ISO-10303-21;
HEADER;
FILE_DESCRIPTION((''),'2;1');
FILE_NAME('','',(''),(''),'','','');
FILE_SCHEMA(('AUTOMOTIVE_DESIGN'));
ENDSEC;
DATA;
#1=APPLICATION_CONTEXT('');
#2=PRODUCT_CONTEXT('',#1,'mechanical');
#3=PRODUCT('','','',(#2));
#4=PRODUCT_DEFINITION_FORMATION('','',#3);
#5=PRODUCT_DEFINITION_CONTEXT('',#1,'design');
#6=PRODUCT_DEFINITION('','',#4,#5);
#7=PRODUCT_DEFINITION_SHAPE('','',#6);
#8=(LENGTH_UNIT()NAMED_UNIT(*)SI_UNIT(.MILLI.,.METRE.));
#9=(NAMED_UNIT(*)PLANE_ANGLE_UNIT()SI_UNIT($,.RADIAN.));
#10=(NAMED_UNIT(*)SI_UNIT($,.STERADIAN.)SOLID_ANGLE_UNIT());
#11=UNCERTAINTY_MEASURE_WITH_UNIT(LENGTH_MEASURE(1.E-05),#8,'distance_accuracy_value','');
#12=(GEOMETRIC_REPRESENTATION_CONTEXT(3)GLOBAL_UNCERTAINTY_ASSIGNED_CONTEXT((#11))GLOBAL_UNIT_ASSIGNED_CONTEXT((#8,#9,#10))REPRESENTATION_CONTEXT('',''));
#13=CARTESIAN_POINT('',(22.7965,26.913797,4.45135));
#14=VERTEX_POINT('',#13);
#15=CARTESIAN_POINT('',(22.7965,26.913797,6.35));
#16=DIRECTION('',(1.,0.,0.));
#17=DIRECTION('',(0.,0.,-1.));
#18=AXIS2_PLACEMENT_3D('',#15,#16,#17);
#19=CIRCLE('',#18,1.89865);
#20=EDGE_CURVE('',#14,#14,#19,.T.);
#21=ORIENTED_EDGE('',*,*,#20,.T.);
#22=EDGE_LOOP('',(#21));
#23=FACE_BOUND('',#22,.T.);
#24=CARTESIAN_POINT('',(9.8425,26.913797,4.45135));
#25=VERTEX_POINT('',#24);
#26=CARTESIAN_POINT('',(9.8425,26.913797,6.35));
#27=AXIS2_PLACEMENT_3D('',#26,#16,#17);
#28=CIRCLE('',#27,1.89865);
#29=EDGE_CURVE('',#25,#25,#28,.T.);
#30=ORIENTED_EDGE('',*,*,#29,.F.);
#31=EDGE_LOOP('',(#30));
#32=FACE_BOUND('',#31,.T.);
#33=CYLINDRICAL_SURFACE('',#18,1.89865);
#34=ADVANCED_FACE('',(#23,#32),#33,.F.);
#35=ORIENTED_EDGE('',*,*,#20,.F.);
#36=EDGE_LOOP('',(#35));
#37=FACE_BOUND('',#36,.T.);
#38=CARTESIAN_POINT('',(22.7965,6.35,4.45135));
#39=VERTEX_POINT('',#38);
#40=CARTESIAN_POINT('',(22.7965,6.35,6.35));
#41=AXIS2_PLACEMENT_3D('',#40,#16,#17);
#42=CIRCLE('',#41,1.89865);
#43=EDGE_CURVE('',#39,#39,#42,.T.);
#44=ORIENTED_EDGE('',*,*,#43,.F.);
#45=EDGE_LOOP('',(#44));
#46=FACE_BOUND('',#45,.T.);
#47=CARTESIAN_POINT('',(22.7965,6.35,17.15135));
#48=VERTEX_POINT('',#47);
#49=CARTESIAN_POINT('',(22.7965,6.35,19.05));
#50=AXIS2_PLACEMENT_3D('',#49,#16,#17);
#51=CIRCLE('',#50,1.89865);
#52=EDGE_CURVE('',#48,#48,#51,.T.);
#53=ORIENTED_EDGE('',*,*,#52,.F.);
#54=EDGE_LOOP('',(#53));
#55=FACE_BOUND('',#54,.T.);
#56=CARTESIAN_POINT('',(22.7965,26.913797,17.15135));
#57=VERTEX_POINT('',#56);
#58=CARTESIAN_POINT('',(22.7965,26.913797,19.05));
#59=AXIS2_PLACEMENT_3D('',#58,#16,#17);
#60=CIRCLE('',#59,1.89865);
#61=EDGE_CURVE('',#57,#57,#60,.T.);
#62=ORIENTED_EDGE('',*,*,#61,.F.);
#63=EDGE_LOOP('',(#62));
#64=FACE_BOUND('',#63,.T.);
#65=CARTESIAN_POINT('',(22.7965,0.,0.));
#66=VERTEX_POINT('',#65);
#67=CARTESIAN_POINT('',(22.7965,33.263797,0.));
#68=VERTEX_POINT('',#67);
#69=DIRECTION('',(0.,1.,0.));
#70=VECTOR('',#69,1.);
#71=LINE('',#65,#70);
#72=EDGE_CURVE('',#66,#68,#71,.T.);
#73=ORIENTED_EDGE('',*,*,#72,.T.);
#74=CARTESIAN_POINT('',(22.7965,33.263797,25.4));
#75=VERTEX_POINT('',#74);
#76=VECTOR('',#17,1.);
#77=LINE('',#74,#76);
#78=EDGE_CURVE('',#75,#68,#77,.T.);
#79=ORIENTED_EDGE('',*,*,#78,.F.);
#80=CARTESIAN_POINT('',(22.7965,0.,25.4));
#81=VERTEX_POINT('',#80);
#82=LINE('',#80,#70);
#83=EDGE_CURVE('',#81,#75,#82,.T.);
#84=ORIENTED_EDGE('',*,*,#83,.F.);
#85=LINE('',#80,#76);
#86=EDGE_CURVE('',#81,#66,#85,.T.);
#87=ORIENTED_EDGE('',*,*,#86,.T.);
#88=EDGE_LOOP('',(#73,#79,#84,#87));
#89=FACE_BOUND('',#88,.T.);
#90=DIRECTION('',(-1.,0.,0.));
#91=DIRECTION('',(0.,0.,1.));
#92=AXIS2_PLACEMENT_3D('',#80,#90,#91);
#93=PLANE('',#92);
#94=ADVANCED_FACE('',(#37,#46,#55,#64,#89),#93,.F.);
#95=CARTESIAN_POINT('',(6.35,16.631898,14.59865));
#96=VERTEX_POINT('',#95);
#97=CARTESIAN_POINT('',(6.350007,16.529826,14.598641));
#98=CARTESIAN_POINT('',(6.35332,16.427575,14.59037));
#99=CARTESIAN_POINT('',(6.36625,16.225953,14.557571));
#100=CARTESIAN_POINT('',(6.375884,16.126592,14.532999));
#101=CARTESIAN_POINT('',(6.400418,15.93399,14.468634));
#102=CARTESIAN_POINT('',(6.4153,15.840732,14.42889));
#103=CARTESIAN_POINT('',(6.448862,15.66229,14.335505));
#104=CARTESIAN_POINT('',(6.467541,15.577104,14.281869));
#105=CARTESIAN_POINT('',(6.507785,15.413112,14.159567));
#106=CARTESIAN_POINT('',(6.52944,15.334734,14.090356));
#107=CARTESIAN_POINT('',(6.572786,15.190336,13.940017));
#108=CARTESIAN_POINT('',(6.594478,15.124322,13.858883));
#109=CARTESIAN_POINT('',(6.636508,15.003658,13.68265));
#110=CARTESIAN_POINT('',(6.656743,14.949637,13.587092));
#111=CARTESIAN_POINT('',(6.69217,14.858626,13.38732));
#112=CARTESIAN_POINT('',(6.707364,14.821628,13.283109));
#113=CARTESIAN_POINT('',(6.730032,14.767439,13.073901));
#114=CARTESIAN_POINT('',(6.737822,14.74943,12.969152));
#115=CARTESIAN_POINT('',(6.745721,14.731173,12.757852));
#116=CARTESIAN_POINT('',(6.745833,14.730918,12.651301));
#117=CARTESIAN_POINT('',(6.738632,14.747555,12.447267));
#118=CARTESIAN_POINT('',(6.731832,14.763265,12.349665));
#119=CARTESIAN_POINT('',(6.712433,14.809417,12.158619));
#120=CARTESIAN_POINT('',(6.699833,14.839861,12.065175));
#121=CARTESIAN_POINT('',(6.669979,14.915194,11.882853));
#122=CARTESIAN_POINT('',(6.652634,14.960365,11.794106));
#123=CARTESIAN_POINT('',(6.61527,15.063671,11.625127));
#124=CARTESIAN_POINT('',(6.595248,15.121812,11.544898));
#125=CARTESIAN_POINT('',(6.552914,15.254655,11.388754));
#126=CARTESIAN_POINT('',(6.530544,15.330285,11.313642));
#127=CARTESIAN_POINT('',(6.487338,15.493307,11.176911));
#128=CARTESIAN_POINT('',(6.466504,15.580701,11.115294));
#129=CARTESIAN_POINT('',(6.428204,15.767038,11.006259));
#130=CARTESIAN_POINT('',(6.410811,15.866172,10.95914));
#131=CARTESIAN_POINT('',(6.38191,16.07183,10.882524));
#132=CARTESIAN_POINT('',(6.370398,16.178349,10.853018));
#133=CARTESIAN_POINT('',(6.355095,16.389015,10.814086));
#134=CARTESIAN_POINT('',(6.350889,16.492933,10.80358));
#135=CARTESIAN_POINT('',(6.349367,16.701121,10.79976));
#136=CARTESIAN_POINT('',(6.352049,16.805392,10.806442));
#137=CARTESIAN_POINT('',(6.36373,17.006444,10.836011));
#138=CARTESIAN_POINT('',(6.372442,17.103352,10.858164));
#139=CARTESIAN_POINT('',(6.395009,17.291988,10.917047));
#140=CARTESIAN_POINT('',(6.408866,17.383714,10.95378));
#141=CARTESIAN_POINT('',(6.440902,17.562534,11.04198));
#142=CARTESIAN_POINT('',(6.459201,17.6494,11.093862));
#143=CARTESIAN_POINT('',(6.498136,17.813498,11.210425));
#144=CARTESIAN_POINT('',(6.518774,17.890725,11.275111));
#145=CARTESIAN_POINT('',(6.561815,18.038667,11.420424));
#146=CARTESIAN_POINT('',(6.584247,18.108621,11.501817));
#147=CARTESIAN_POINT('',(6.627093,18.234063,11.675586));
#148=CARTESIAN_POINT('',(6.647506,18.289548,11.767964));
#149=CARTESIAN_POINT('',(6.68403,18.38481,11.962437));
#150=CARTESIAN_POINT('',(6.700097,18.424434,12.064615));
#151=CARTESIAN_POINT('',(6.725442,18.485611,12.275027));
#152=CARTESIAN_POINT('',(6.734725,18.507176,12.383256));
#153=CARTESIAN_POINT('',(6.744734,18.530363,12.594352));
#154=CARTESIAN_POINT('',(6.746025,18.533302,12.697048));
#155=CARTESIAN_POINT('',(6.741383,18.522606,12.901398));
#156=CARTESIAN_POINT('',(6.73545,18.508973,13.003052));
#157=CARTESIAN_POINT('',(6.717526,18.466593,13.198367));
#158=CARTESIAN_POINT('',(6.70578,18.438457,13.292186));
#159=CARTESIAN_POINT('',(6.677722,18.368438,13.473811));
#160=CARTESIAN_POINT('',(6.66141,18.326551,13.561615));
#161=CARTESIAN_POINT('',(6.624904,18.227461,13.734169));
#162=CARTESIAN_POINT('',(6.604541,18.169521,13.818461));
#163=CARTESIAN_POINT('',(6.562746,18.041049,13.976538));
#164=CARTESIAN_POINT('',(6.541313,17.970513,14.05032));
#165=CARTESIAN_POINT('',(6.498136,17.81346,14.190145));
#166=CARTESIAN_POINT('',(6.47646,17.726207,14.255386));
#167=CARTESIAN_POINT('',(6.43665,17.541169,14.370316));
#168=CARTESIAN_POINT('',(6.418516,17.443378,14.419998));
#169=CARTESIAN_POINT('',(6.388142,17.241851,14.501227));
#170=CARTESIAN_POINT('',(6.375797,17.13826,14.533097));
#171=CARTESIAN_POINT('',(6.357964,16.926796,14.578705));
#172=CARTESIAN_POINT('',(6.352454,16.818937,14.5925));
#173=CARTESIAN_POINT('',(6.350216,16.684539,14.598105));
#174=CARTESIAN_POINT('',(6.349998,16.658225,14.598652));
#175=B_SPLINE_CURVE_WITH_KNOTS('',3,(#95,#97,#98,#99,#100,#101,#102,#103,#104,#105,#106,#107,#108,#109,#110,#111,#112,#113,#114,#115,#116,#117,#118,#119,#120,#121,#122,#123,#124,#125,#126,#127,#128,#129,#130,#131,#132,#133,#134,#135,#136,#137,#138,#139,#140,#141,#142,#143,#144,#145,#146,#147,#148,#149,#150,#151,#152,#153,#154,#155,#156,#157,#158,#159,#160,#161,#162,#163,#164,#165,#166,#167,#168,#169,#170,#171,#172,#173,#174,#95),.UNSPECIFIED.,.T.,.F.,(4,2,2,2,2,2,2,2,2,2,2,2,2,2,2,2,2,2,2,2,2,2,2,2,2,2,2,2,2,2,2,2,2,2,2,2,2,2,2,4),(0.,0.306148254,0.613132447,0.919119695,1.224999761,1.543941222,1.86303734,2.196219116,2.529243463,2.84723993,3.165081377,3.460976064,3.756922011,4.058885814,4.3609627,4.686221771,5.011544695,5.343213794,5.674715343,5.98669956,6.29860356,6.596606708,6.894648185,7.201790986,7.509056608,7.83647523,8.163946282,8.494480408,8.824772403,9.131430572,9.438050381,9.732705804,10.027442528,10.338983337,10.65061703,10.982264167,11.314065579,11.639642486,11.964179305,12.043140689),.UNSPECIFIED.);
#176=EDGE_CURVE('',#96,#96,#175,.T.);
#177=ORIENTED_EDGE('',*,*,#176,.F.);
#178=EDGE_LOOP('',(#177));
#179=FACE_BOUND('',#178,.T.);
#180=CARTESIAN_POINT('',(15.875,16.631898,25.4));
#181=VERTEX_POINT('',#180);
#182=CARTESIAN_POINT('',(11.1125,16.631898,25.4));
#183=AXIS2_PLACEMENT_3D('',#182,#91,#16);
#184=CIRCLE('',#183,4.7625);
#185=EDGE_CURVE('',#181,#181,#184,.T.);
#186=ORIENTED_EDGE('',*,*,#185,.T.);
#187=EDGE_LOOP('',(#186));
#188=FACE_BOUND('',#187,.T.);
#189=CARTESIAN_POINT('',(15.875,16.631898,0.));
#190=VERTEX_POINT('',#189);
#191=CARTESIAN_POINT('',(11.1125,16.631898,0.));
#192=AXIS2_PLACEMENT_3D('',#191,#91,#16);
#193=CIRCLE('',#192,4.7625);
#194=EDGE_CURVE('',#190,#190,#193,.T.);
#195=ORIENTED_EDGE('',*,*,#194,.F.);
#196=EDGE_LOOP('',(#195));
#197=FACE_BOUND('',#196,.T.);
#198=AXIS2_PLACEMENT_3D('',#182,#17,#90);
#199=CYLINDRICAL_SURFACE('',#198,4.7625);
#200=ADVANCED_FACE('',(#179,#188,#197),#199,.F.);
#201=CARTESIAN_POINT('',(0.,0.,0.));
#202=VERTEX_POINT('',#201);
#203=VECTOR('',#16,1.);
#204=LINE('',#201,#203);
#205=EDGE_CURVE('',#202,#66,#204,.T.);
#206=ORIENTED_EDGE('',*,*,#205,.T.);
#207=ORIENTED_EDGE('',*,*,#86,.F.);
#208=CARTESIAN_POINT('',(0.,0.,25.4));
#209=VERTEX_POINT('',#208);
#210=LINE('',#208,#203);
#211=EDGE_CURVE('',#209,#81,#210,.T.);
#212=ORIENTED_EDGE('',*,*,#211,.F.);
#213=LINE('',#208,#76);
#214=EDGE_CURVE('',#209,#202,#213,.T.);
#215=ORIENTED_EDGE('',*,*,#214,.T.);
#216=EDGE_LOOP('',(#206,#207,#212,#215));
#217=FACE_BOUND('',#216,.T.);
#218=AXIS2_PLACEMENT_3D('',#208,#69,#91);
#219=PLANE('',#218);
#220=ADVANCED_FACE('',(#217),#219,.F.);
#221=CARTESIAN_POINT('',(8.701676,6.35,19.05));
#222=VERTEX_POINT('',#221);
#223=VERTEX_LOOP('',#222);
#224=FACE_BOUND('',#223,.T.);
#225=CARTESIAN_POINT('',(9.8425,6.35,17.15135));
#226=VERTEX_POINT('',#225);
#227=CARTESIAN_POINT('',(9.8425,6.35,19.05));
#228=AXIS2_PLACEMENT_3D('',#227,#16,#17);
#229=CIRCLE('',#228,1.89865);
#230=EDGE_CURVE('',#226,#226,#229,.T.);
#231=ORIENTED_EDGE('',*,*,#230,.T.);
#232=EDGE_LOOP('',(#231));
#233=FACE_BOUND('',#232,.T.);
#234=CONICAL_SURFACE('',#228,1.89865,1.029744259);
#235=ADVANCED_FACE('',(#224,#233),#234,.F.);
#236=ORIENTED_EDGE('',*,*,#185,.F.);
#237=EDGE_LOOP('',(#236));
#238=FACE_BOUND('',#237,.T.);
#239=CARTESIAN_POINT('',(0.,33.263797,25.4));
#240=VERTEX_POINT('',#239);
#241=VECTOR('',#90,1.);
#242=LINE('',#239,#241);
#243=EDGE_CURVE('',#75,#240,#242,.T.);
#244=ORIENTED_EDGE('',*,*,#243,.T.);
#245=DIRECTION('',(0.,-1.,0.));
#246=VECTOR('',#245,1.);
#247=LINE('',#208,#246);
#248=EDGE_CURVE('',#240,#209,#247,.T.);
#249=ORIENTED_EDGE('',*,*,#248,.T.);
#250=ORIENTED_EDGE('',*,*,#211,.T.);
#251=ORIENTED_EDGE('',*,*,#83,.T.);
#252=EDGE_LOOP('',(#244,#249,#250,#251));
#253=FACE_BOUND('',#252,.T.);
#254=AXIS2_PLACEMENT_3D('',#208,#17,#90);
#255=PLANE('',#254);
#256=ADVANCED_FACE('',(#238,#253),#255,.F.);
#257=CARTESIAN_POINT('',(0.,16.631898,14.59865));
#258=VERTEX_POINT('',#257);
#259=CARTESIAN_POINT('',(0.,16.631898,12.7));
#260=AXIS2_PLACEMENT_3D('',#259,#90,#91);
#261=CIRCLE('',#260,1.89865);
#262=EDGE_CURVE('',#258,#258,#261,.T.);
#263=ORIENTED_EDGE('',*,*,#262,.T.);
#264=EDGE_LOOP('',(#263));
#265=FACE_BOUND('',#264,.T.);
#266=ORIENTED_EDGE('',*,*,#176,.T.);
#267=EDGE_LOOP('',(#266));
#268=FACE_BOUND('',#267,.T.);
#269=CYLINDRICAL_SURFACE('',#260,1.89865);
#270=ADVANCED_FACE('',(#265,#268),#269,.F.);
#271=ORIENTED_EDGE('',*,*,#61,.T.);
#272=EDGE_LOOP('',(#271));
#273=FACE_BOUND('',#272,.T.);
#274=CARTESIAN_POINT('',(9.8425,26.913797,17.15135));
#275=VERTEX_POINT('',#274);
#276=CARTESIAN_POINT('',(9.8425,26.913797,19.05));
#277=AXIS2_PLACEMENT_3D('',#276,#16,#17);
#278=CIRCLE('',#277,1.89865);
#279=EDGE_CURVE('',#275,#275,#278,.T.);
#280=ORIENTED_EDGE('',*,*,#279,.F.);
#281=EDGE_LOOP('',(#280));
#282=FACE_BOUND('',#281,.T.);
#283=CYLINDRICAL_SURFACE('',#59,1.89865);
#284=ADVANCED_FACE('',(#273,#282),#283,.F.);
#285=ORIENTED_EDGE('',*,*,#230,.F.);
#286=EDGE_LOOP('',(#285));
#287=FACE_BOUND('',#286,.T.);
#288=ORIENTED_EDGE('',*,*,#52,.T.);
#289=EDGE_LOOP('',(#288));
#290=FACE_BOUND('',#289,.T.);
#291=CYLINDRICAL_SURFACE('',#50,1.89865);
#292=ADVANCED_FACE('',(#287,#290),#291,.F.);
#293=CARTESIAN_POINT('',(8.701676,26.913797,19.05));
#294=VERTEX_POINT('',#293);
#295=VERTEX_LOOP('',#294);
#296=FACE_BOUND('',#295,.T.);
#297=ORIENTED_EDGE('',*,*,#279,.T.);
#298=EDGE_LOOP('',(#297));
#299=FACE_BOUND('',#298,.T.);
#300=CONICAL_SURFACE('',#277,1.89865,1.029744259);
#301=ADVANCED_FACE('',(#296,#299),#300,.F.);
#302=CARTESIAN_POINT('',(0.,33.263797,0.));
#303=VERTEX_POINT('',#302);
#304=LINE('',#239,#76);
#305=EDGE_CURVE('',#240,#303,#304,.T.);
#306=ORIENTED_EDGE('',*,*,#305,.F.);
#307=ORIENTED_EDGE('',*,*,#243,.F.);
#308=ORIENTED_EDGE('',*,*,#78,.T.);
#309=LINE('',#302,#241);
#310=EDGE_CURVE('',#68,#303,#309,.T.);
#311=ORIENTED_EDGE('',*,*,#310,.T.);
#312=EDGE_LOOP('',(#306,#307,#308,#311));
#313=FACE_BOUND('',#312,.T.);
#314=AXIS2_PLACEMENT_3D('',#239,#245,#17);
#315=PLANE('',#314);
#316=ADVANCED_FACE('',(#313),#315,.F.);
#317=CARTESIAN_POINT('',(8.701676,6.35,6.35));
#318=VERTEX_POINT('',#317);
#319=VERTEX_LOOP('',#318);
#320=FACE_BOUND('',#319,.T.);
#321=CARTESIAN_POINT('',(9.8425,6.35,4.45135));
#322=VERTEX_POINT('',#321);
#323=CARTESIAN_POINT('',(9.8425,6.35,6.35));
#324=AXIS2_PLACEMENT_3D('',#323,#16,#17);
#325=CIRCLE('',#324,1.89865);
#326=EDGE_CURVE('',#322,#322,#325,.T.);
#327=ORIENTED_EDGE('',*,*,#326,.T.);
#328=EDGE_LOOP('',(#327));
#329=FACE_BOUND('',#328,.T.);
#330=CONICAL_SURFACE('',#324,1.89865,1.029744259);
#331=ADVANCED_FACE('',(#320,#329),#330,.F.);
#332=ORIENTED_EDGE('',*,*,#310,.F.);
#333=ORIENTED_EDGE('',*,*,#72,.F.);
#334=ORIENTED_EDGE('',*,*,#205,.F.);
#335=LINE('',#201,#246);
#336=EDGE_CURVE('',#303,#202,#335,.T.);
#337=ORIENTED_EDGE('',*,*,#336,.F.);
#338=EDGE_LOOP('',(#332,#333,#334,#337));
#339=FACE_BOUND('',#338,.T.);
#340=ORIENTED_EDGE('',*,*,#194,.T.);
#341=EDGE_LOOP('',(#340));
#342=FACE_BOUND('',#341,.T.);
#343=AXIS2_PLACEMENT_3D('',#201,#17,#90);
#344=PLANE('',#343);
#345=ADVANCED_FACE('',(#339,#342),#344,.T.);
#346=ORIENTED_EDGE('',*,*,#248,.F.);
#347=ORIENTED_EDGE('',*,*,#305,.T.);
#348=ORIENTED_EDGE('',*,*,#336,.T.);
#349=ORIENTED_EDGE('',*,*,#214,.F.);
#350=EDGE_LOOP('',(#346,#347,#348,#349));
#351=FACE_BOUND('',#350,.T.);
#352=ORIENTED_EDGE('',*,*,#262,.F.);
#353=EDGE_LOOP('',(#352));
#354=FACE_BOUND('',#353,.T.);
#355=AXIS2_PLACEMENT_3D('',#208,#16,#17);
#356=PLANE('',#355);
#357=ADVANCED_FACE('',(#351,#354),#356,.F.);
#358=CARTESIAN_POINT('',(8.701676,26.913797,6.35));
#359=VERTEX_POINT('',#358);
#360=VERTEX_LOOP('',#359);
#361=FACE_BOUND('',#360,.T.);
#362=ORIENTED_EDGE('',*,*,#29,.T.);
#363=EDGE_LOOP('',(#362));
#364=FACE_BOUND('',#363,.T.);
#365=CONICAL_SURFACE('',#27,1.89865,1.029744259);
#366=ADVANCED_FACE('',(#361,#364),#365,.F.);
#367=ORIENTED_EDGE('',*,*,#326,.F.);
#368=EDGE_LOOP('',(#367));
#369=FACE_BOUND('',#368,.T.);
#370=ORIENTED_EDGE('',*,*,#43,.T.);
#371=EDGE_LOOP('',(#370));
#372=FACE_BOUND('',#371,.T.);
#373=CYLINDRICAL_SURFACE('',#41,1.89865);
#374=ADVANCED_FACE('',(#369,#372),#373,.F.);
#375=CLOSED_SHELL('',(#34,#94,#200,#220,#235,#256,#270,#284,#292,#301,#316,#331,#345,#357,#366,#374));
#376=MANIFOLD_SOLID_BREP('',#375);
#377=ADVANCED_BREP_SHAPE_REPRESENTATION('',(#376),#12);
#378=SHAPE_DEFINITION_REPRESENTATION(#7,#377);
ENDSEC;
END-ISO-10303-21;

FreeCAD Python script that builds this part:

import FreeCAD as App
import Part
import Sketcher
from FreeCAD import Vector
Q = App.Units.Quantity


def add_polygon(sketch, points):
    """Adds a closed chain of lines whose ends are joined by coincident constraints."""
    first, n = sketch.GeometryCount, len(points)
    for a, b in zip(points, points[1:] + points[:1]):
        sketch.addGeometry(Part.LineSegment(App.Vector(*a, 0), App.Vector(*b, 0)), False)
    for i in range(n):
        sketch.addConstraint(Sketcher.Constraint("Coincident", first + i, 2, first + (i + 1) % n, 1))

doc = App.newDocument("Part")
body = doc.addObject("PartDesign::Body", "Body")

sketch1 = body.newObject("Sketcher::SketchObject", "Sketch")
sketch1.AttachmentSupport = (doc.getObject("XY_Plane"), [""])
sketch1.MapMode = "FlatFace"
add_polygon(sketch1, [(0, 33.3), (0, 0), (22.8, 0), (22.8, 33.3)])
sketch1.addGeometry(Part.Circle(Vector(11.1, 16.6, 0), Vector(0, 0, 1), 4.8), False)
sketch1.addConstraint(Sketcher.Constraint("Vertical", 0))
sketch1.addConstraint(Sketcher.Constraint("Horizontal", 1))
sketch1.addConstraint(Sketcher.Constraint("Vertical", 2))
sketch1.addConstraint(Sketcher.Constraint("Horizontal", 3))
sketch1.addConstraint(Sketcher.Constraint("Coincident", 0, 2, -1, 1))
sketch1.addConstraint(Sketcher.Constraint("Diameter", 4, Q("0.375 in")))
sketch1.addConstraint(Sketcher.Constraint("DistanceX", 4, 3, 1, 2, Q("0.46 in")))
sketch1.addConstraint(Sketcher.Constraint("DistanceX", 1, 1, 1, 2, Q("0.8975 in")))
sketch1.addConstraint(Sketcher.Constraint("DistanceY", -1, 1, 4, 3, 16.631898))
sketch1.addConstraint(Sketcher.Constraint("DistanceY", 4, 3, 2, 2, 16.631898))
pad1 = body.newObject("PartDesign::Pad", "Pad")
pad1.Profile = sketch1
pad1.Length = Q("1 in")

sketch2 = body.newObject("Sketcher::SketchObject", "Sketch001")
sketch2.AttachmentSupport = (doc.getObject("YZ_Plane"), [""])
sketch2.MapMode = "FlatFace"
sketch2.addGeometry(Part.Circle(Vector(16.6, 12.7, 0), Vector(0, 0, 1), 1.9), False)
sketch2.addConstraint(Sketcher.Constraint("Diameter", 0, Q("0.1495 in")))
sketch2.addConstraint(Sketcher.Constraint("DistanceY", -1, 1, 0, 3, Q("0.5 in")))
sketch2.addConstraint(Sketcher.Constraint("DistanceX", -1, 1, 0, 3, 16.631898))
pocket1 = body.newObject("PartDesign::Pocket", "Pocket")
pocket1.Profile = sketch2
pocket1.Type = "UpToFirst"
pocket1.Reversed = True

sketch3 = body.newObject("Sketcher::SketchObject", "Sketch002")
sketch3.AttachmentSupport = (doc.getObject("YZ_Plane"), [""])
sketch3.MapMode = "FlatFace"
sketch3.AttachmentOffset = App.Placement(Vector(0, 0, 0.8975 * 25.4), App.Rotation())
sketch3.addGeometry(Part.Circle(Vector(26.9, 19.1, 0), Vector(0, 0, 1), 1.9), False)
sketch3.addGeometry(Part.Circle(Vector(26.9, 6.3, 0), Vector(0, 0, 1), 1.9), False)
sketch3.addGeometry(Part.Circle(Vector(6.3, 19.1, 0), Vector(0, 0, 1), 1.9), False)
sketch3.addGeometry(Part.Circle(Vector(6.3, 6.3, 0), Vector(0, 0, 1), 1.9), False)
sketch3.addConstraint(Sketcher.Constraint("Equal", 0, 1))
sketch3.addConstraint(Sketcher.Constraint("Equal", 1, 2))
sketch3.addConstraint(Sketcher.Constraint("Equal", 2, 3))
sketch3.addConstraint(Sketcher.Constraint("Horizontal", 0, 3, 2, 3))
sketch3.addConstraint(Sketcher.Constraint("Horizontal", 1, 3, 3, 3))
sketch3.addConstraint(Sketcher.Constraint("Vertical", 0, 3, 1, 3))
sketch3.addConstraint(Sketcher.Constraint("Vertical", 2, 3, 3, 3))
sketch3.addConstraint(Sketcher.Constraint("Diameter", 0, Q("0.1495 in")))
sketch3.addConstraint(Sketcher.Constraint("DistanceY", 1, 3, 0, 3, Q("0.5 in")))
sketch3.addConstraint(Sketcher.Constraint("DistanceY", -1, 1, 0, 3, Q("0.75 in")))
sketch3.addConstraint(Sketcher.Constraint("DistanceX", -1, 1, 2, 3, Q("0.25 in")))
sketch3.addConstraint(Sketcher.Constraint("DistanceX", -1, 1, 0, 3, 26.913797))
doc.recompute()
hole = body.newObject("PartDesign::Hole", "Hole")
hole.Profile = sketch3
hole.ThreadType = "None"
hole.Diameter = Q("0.1495 in")
hole.DepthType = "Dimension"
hole.Depth = Q("0.51 in")
hole.DrillPoint = "Angled"
hole.DrillPointAngle = 118

doc.recompute()
